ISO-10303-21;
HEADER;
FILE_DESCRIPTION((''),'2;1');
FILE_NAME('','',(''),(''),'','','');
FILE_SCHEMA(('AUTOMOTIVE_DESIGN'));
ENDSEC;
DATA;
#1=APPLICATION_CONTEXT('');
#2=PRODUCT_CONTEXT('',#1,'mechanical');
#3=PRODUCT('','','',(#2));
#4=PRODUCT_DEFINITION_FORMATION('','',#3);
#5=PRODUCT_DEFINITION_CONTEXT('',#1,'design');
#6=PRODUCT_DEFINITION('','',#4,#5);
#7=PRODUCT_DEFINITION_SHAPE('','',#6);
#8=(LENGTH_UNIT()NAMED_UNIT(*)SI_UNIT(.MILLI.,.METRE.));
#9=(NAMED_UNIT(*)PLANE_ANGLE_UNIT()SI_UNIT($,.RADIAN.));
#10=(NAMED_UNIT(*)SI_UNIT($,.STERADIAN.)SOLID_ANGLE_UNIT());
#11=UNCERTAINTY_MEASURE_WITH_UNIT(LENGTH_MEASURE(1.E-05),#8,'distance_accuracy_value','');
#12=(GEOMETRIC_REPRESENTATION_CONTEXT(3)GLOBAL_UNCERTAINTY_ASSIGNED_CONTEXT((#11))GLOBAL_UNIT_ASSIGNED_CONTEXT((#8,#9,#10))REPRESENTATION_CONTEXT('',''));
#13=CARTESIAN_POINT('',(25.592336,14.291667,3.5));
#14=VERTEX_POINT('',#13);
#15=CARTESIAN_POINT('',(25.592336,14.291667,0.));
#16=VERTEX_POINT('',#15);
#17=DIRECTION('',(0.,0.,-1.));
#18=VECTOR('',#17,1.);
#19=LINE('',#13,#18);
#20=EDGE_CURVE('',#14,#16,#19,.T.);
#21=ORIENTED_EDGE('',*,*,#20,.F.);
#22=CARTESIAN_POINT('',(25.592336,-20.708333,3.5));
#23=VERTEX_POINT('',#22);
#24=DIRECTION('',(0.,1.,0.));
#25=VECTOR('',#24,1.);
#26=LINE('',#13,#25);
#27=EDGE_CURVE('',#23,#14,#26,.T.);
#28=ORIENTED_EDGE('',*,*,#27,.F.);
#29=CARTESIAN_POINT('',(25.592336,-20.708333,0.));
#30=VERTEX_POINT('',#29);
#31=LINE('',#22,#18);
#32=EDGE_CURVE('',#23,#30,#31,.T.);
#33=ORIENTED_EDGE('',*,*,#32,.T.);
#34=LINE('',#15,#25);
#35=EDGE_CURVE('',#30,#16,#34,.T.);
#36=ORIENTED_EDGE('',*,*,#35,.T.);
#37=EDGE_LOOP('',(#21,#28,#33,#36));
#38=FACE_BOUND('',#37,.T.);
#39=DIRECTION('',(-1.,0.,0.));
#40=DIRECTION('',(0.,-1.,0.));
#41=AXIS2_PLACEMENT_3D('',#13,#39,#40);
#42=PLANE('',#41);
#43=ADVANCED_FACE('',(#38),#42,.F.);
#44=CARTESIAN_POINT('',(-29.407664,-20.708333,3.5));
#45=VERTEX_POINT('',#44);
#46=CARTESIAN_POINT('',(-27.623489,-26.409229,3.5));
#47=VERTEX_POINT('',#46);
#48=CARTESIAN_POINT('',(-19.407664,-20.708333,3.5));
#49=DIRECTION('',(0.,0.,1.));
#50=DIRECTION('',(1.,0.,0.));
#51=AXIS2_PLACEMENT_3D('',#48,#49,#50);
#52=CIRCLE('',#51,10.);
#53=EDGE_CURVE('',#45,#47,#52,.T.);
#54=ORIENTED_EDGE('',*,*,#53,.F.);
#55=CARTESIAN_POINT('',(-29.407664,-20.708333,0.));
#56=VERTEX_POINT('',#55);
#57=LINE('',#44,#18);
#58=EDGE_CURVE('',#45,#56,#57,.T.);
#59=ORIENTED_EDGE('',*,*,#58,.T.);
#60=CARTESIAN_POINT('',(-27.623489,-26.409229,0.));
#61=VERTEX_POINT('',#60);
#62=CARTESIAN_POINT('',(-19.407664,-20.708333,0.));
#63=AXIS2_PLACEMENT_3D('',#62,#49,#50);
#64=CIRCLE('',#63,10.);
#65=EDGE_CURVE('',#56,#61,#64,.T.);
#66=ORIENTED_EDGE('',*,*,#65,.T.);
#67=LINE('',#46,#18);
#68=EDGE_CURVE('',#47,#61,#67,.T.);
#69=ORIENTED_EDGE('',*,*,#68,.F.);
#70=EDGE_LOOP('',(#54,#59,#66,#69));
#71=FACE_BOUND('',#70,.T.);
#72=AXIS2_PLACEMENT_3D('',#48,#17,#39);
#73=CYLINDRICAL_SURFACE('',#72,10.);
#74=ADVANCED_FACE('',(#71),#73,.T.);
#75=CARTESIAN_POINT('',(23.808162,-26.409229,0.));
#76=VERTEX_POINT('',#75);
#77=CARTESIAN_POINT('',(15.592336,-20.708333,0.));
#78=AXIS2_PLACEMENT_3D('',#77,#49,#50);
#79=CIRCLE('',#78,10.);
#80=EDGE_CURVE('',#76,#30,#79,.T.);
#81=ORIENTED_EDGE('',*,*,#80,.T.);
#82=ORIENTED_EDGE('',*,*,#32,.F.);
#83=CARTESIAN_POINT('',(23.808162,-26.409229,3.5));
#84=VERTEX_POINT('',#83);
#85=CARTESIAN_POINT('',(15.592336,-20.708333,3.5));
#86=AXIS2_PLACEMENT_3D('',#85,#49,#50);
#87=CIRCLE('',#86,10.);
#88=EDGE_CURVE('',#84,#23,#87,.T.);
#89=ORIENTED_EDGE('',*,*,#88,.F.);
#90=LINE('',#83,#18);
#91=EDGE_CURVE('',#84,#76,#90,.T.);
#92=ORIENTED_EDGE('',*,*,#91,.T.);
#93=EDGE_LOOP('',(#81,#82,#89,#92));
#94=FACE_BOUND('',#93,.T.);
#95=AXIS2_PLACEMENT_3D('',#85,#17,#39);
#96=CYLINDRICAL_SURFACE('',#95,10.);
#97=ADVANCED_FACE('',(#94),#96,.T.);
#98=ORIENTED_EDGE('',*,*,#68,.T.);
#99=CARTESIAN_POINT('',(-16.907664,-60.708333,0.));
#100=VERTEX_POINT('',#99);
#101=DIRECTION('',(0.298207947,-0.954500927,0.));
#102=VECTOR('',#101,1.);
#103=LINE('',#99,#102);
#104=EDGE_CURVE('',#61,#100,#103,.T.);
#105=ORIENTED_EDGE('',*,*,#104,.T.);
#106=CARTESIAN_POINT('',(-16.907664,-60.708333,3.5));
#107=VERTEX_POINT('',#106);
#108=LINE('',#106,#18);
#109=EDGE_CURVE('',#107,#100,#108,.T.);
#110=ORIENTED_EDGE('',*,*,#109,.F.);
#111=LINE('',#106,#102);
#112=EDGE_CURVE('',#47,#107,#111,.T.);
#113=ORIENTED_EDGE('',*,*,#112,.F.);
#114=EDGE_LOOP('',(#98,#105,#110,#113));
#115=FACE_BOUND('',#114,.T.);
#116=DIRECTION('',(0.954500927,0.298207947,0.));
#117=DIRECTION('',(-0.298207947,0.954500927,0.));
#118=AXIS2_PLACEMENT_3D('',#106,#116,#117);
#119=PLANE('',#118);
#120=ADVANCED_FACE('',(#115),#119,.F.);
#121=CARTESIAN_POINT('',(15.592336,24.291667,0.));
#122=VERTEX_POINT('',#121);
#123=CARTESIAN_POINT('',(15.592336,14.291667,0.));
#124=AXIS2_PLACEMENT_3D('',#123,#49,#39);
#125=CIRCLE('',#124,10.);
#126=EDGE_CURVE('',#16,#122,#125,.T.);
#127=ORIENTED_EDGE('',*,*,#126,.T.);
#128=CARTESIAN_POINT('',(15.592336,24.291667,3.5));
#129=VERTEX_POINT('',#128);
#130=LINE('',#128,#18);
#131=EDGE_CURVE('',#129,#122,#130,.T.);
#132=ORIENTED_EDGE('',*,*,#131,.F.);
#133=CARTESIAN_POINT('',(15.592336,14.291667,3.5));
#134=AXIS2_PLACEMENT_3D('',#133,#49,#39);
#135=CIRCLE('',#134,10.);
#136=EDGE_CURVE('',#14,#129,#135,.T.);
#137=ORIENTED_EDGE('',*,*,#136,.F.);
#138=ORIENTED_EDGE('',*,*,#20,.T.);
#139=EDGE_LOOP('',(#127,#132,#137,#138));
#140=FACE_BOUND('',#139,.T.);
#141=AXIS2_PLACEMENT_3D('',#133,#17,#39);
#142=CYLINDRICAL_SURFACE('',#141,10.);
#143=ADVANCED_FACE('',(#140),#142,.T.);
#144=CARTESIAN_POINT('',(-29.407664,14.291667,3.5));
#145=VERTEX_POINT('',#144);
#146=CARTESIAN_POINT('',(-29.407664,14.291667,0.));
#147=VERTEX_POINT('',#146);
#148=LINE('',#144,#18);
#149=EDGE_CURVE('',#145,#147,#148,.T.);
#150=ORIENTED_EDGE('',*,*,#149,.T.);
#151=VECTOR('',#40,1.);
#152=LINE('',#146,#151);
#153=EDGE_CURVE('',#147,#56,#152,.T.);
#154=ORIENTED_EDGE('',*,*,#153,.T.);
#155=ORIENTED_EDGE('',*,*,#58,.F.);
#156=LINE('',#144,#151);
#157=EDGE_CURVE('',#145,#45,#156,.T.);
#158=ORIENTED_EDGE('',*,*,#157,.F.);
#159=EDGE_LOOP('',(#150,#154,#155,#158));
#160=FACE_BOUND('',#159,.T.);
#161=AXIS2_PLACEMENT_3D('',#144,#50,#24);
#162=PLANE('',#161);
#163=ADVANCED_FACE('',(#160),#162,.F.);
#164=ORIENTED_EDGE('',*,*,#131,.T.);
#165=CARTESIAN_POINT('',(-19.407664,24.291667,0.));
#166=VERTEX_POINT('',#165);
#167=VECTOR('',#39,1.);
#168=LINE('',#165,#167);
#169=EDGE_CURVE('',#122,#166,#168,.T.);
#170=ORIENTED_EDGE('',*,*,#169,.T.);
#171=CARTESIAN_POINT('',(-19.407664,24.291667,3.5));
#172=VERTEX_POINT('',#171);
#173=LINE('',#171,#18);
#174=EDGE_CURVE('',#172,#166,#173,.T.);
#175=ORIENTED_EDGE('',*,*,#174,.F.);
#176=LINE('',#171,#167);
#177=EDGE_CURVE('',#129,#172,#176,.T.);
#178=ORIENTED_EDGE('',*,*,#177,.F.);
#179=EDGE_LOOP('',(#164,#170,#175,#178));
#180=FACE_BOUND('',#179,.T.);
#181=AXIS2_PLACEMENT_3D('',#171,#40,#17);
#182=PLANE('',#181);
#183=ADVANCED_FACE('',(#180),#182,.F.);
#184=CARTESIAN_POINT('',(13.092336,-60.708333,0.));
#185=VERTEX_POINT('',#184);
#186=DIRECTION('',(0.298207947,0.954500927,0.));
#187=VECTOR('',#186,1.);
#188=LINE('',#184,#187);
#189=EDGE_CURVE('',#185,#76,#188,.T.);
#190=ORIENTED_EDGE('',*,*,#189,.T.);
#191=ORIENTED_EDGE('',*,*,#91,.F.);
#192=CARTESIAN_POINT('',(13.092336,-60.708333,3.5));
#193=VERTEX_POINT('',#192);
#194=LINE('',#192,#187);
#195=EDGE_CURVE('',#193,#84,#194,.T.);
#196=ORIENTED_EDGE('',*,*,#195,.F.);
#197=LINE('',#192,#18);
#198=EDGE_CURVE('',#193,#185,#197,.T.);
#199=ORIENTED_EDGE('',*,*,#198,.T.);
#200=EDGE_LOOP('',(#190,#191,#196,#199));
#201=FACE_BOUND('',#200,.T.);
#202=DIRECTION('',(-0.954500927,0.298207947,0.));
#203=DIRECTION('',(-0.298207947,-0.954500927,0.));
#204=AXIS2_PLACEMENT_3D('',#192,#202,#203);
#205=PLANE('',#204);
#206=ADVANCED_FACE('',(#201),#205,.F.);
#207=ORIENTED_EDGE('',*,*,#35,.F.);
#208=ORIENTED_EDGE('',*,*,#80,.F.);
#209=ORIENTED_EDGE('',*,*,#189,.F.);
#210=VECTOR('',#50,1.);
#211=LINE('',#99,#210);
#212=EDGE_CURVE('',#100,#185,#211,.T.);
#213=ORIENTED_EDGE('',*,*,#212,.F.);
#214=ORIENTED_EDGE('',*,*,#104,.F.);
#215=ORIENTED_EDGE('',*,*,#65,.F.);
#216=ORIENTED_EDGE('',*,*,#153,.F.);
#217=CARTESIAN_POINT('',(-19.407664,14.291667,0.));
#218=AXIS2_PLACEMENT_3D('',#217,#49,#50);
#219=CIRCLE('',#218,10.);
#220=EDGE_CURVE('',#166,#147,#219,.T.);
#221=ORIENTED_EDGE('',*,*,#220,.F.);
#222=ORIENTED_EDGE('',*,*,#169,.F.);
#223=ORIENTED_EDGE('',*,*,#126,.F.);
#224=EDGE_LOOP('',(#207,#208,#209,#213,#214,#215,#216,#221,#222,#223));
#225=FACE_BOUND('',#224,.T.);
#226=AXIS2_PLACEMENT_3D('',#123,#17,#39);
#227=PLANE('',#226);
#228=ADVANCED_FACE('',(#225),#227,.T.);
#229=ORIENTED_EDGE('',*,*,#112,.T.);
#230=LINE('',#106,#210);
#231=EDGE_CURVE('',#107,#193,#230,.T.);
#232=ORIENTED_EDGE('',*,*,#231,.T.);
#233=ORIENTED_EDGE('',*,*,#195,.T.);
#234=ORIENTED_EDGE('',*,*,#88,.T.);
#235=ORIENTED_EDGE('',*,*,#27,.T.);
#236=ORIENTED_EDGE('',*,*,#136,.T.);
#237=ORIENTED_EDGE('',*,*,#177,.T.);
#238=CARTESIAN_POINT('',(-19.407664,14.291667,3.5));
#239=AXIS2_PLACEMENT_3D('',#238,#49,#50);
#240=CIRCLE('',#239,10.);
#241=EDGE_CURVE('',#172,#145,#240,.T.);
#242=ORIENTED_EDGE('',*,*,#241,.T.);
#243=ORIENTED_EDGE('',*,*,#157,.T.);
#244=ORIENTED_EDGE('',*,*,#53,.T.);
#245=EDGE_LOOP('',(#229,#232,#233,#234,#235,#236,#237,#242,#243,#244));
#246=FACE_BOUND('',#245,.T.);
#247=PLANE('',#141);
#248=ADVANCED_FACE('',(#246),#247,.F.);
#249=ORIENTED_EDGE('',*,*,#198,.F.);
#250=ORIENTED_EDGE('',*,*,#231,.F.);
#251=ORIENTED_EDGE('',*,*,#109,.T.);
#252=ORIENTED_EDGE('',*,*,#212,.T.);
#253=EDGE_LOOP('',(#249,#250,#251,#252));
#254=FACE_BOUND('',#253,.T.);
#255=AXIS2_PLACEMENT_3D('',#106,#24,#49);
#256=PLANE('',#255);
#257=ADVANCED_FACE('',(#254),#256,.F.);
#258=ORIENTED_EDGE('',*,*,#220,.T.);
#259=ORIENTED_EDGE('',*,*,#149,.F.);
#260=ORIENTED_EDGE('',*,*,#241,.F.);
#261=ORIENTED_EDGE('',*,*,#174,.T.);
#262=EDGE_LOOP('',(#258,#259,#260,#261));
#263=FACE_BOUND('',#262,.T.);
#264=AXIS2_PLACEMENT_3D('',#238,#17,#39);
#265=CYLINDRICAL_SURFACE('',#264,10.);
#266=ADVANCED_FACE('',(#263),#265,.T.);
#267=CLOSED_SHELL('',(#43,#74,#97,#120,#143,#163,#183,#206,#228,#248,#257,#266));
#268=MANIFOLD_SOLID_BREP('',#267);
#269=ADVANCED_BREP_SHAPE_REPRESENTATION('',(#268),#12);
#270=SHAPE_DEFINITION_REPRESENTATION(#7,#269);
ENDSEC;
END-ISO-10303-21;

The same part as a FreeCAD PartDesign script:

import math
import FreeCAD as App
import Part
import Sketcher
from FreeCAD import Vector
Q = App.Units.Quantity

doc = App.newDocument("Part")
body = doc.addObject("PartDesign::Body", "Body")

# Sketch on XY plane
sketch1 = body.newObject("Sketcher::SketchObject", "Sketch")
sketch1.AttachmentSupport = (doc.getObject("XY_Plane"), [""])
sketch1.MapMode = "FlatFace"
sketch1.addGeometry([
    Part.LineSegment(Vector(-17, -61, 0), Vector(13, -61, 0)),  # 0
    Part.LineSegment(Vector(13, -61, 0), Vector(24, -26, 0)),  # 1
    Part.ArcOfCircle(Part.Circle(Vector(16, -21, 0), Vector(0, 0, 1), 10), math.radians(-35), math.radians(0)),  # 2
    Part.LineSegment(Vector(26, -21, 0), Vector(26, 14, 0)),  # 3
    Part.ArcOfCircle(Part.Circle(Vector(16, 14, 0), Vector(0, 0, 1), 10), math.radians(0), math.radians(90)),  # 4
    Part.LineSegment(Vector(16, 24, 0), Vector(-19, 24, 0)),  # 5
    Part.ArcOfCircle(Part.Circle(Vector(-19, 14, 0), Vector(0, 0, 1), 10), math.radians(90), math.radians(180)),  # 6
    Part.LineSegment(Vector(-29, 14, 0), Vector(-29, -21, 0)),  # 7
    Part.ArcOfCircle(Part.Circle(Vector(-19, -21, 0), Vector(0, 0, 1), 10), math.radians(-180), math.radians(-145)),  # 8
    Part.LineSegment(Vector(-28, -26, 0), Vector(-17, -61, 0)),  # 9
], False)
sketch1.addConstraint([
    Sketcher.Constraint("Coincident", 0, 2, 1, 1),
    Sketcher.Constraint("Coincident", 1, 2, 2, 1),
    Sketcher.Constraint("Tangent", 2, 2, 3, 1),
    Sketcher.Constraint("Tangent", 3, 2, 4, 1),
    Sketcher.Constraint("Tangent", 4, 2, 5, 1),
    Sketcher.Constraint("Tangent", 5, 2, 6, 1),
    Sketcher.Constraint("Tangent", 6, 2, 7, 1),
    Sketcher.Constraint("Tangent", 7, 2, 8, 1),
    Sketcher.Constraint("Coincident", 8, 2, 9, 1),
    Sketcher.Constraint("Coincident", 9, 2, 0, 1),
    Sketcher.Constraint("Horizontal", 0),
    Sketcher.Constraint("Vertical", 3),
    Sketcher.Constraint("Horizontal", 5),
    Sketcher.Constraint("Vertical", 7),
    Sketcher.Constraint("Equal", 2, 4),
    Sketcher.Constraint("Equal", 4, 6),
    Sketcher.Constraint("Equal", 6, 8),
    Sketcher.Constraint("Horizontal", 2, 3, 8, 3),
    Sketcher.Constraint("Horizontal", 1, 2, 8, 2),
    Sketcher.Constraint("Equal", 5, 3),
    Sketcher.Constraint("Equal", 1, 9),
    Sketcher.Constraint("Radius", 2, 10.0),
    Sketcher.Constraint("DistanceX", 0, 1, 0, 2, 30.0),
    Sketcher.Constraint("DistanceX", 5, 2, 5, 1, 35.0),
    Sketcher.Constraint("DistanceY", 0, 2, 2, 3, 40.0),
    Sketcher.Constraint("Angle", 1, Q("72.65 deg")),
    Sketcher.Constraint("DistanceY", 1, 2, -1, 1, 26.409229),
    Sketcher.Constraint("DistanceX", 8, 2, -1, 1, 27.623489),
])
pad1 = body.newObject("PartDesign::Pad", "Pad")
pad1.Profile = sketch1
pad1.Length = 3.5

doc.recompute()
